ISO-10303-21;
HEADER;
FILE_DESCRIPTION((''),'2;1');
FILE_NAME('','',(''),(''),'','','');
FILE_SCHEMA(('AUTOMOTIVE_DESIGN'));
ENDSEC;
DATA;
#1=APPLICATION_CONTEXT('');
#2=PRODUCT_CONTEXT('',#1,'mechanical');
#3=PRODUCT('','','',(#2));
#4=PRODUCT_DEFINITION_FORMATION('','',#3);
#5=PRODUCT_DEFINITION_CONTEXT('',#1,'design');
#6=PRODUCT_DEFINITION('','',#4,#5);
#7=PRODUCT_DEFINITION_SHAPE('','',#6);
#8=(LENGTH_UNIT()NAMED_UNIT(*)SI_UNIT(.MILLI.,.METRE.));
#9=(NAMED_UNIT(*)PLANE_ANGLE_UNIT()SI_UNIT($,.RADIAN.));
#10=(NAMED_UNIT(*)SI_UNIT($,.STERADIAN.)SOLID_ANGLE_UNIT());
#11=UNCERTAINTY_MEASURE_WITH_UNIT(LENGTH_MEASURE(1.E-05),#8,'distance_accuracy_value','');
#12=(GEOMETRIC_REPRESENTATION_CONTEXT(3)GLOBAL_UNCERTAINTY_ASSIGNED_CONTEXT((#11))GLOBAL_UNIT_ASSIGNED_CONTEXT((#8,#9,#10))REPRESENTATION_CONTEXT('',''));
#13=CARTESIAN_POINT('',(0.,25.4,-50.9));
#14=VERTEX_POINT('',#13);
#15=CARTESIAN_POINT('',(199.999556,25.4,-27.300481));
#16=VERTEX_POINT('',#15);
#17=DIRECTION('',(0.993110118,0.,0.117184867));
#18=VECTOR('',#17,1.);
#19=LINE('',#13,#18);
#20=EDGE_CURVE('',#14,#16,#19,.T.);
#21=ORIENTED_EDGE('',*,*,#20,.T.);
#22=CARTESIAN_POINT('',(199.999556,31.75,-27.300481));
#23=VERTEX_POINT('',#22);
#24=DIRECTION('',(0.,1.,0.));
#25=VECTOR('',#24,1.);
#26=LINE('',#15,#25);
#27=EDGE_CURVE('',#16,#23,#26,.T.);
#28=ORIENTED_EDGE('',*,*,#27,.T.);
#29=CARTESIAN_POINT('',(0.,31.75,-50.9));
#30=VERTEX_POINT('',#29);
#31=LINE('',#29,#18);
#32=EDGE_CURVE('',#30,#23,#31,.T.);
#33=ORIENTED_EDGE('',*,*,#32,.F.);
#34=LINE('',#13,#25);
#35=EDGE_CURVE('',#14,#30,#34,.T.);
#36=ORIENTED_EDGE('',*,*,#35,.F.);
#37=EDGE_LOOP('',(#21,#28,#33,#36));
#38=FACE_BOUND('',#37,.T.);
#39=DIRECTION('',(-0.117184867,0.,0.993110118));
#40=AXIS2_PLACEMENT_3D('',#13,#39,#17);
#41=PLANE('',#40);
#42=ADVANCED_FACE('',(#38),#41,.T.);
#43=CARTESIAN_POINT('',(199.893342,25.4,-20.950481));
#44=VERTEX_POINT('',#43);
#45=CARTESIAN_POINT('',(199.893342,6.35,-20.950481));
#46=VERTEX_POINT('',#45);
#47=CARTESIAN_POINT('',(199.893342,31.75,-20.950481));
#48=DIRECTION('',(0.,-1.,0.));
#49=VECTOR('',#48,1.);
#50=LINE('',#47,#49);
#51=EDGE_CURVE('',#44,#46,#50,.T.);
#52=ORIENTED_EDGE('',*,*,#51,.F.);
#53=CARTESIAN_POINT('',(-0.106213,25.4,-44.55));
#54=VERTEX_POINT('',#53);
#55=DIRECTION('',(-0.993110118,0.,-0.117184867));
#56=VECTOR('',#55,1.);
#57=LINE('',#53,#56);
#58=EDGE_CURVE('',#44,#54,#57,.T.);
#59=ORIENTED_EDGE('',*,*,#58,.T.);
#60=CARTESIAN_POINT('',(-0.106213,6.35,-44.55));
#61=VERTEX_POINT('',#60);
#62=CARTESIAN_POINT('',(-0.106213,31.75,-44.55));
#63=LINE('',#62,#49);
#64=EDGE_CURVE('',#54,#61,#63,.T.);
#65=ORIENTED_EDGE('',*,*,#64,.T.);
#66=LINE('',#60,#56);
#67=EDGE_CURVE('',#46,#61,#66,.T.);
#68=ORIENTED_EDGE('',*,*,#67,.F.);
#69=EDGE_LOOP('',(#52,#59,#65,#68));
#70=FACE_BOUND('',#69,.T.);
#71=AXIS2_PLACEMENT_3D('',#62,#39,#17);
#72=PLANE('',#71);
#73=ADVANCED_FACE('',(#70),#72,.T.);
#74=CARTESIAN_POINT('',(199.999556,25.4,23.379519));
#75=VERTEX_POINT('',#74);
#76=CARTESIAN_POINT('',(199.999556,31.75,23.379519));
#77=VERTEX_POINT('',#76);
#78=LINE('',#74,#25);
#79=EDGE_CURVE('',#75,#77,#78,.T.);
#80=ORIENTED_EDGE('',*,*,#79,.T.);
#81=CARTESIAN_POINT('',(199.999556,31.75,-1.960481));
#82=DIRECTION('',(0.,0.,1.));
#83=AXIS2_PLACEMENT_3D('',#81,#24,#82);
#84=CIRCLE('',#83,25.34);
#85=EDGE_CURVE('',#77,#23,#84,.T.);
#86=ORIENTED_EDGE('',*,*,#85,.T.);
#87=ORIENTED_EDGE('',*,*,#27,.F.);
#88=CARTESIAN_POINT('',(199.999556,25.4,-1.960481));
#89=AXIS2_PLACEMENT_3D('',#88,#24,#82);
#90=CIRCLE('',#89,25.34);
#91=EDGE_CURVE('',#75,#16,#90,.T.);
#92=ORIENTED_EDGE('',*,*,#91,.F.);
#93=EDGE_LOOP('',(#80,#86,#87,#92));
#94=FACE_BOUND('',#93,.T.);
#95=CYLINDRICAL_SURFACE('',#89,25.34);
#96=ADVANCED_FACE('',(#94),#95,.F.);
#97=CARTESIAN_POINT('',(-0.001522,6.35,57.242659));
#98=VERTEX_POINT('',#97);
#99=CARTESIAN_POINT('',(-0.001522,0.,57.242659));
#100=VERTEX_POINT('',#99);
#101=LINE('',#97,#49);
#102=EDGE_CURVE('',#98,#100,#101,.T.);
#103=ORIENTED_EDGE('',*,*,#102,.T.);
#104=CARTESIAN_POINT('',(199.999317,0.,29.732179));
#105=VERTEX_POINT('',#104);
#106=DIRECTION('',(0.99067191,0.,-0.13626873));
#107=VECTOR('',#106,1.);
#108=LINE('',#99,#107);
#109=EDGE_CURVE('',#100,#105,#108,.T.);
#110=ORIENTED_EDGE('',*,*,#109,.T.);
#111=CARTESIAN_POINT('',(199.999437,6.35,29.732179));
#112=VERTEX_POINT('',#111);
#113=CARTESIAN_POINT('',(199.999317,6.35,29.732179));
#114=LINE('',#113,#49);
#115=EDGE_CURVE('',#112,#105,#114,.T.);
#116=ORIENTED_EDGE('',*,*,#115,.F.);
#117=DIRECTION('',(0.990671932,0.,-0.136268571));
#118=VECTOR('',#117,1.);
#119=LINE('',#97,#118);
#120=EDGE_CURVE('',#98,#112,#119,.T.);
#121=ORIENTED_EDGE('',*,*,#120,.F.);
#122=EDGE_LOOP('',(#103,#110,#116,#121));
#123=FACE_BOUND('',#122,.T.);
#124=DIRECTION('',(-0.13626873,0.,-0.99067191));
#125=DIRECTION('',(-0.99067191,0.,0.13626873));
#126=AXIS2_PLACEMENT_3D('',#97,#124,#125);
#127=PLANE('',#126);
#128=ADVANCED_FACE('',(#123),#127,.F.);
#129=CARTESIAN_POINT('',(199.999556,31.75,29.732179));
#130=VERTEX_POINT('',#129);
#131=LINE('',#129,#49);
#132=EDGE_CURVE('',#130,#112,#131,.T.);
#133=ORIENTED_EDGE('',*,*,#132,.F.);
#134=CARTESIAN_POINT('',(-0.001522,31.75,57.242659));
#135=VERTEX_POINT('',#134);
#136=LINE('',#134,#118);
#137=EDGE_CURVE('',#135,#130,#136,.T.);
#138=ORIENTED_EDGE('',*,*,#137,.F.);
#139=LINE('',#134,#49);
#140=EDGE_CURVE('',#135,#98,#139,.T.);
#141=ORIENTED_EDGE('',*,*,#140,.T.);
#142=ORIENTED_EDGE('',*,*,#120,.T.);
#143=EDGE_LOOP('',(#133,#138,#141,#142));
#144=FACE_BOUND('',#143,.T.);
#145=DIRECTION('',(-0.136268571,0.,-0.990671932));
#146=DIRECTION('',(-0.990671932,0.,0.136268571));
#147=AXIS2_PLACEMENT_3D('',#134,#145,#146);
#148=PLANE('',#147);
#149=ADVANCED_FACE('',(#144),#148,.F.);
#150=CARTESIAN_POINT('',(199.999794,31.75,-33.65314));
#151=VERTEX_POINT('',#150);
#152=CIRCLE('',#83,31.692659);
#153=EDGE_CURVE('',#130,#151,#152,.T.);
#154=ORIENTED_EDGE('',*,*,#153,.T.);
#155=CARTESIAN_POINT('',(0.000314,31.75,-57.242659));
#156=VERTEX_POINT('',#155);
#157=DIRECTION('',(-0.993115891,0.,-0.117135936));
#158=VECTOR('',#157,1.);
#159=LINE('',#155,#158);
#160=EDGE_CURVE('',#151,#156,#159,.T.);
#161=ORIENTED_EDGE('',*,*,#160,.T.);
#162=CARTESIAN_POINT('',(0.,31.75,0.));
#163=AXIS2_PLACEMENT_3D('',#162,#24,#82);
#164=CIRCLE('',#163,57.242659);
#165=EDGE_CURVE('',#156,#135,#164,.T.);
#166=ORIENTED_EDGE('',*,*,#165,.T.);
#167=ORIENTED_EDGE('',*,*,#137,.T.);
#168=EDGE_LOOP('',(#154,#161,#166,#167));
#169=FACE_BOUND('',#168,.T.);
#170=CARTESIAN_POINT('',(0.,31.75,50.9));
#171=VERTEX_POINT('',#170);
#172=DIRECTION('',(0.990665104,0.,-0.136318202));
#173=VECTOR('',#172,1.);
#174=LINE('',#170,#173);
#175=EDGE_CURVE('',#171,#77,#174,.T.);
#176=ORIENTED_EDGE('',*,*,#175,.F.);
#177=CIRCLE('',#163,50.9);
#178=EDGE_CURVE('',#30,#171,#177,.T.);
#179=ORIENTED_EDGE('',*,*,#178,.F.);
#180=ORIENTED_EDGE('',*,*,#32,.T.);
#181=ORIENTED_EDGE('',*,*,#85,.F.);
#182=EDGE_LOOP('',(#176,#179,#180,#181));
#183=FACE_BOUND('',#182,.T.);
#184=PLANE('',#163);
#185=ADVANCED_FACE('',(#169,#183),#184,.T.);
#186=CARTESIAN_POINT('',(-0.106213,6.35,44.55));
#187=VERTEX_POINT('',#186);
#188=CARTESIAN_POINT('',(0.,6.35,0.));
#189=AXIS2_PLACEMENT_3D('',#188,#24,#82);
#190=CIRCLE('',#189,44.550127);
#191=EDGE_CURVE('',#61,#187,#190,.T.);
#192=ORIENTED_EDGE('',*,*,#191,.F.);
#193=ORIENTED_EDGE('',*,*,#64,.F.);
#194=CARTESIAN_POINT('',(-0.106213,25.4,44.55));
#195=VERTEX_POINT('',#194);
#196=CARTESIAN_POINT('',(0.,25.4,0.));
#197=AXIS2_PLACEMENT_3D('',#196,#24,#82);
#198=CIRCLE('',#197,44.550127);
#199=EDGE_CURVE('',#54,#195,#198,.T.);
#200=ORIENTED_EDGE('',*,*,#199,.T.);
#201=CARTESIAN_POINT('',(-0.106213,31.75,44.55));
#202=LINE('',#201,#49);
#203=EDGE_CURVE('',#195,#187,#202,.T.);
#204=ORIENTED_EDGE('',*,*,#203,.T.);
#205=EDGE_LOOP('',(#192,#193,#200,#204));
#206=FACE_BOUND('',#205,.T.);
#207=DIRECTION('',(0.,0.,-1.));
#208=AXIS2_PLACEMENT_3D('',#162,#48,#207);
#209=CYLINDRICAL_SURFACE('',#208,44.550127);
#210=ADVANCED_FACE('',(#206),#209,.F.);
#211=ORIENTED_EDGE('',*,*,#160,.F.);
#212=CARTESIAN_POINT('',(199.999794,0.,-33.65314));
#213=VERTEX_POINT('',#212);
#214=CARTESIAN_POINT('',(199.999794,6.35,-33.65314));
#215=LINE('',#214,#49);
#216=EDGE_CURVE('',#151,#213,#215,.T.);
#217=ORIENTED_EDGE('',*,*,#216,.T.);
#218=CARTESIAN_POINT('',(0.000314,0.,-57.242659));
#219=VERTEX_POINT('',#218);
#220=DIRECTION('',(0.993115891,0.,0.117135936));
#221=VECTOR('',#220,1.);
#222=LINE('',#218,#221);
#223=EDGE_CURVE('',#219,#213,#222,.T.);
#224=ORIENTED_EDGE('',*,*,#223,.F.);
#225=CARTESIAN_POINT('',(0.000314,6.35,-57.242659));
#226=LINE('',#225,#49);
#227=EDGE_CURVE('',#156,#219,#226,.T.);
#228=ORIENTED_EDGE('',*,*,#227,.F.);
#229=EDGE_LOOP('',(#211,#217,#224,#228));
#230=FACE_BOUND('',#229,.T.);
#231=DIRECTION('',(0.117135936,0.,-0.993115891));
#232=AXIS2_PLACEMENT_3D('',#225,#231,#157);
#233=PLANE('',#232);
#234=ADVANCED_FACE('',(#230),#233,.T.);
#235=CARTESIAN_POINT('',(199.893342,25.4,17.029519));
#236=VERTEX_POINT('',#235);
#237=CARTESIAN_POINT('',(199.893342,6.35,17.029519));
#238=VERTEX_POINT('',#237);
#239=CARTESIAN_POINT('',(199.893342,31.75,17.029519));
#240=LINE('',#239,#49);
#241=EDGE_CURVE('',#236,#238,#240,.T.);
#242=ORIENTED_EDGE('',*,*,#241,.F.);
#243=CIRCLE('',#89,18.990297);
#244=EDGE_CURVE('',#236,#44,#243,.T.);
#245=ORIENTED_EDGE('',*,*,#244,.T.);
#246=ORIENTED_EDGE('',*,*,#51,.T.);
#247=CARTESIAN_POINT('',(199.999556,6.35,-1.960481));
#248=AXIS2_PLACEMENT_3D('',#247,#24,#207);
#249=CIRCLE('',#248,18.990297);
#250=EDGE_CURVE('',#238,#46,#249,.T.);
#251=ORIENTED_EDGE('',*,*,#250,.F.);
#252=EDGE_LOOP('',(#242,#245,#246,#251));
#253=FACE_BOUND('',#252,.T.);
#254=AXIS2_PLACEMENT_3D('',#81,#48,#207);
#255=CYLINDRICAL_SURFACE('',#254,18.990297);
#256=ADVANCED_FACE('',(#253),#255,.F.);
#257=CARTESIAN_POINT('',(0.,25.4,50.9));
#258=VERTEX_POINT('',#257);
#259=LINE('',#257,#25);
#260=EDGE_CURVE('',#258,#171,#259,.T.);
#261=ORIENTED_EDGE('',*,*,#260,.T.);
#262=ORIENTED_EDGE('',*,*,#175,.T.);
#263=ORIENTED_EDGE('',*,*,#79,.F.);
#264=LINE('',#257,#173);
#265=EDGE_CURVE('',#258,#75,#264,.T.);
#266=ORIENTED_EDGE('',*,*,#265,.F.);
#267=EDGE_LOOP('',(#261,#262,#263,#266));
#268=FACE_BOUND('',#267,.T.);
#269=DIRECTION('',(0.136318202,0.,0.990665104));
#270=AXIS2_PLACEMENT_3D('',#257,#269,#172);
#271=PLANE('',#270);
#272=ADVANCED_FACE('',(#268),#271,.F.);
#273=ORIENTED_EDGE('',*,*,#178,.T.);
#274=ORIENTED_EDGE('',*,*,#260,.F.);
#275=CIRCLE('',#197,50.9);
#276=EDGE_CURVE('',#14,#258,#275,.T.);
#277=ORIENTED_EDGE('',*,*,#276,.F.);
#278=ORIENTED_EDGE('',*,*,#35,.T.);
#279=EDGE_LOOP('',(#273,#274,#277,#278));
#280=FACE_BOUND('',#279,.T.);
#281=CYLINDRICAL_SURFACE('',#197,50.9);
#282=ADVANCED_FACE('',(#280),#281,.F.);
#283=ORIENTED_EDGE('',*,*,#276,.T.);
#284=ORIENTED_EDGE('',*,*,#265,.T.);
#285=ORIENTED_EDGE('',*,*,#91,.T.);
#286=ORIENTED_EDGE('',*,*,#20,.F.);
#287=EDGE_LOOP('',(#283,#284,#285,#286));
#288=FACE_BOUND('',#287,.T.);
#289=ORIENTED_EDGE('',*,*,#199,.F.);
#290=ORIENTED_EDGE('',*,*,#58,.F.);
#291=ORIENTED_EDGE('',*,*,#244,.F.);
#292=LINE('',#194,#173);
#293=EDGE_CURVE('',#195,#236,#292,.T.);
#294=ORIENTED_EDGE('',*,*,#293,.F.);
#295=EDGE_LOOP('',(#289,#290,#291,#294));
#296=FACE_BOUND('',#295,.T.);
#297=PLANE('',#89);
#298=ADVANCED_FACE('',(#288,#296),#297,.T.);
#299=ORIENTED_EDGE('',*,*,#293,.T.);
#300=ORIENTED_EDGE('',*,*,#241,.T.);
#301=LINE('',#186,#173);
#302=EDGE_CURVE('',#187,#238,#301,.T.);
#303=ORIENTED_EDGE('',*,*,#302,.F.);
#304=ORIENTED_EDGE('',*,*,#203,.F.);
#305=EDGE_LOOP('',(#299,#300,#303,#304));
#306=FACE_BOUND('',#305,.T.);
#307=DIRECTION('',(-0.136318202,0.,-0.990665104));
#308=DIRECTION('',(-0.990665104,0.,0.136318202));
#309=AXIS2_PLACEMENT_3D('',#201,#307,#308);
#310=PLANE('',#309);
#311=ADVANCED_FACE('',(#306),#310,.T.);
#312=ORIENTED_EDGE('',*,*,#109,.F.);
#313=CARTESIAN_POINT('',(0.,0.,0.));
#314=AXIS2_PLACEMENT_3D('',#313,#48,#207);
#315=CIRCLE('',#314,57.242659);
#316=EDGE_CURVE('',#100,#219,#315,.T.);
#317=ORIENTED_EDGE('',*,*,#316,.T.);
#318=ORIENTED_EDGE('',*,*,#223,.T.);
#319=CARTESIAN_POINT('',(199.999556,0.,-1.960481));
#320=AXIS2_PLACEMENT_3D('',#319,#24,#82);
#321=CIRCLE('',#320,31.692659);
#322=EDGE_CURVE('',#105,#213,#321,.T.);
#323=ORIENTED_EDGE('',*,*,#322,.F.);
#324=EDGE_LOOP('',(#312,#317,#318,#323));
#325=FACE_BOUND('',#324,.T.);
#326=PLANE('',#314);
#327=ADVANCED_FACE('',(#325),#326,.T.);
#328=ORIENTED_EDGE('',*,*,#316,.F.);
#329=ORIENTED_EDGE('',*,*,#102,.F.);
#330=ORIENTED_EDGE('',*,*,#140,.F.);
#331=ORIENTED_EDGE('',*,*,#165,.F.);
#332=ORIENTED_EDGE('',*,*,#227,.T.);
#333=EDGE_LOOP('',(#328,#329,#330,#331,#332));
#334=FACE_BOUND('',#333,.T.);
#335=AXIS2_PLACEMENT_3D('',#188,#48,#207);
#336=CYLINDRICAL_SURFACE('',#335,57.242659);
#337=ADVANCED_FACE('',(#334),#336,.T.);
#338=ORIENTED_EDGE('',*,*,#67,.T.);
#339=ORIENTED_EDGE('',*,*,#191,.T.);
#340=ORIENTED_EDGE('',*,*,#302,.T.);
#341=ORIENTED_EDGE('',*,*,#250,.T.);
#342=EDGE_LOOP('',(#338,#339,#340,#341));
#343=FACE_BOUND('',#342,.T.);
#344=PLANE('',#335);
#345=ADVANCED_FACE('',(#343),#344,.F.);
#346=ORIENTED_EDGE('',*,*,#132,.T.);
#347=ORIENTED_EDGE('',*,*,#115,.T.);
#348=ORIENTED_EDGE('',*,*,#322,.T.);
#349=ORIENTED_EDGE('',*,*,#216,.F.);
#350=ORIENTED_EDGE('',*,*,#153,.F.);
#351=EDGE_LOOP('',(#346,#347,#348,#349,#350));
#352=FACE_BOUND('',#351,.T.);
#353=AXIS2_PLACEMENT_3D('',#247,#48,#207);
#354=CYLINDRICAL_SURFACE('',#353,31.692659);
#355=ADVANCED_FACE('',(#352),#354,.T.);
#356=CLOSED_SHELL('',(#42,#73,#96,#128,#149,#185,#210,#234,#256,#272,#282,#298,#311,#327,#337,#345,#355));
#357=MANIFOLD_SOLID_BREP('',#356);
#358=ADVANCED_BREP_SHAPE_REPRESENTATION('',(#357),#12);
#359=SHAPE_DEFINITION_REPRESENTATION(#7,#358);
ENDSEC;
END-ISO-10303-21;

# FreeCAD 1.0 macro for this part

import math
import FreeCAD as App
import Part
import Sketcher
Q = App.Units.Quantity

doc = App.newDocument("Part")
body = doc.addObject("PartDesign::Body", "Body")

# Sketch on XZ plane
sketch1 = body.newObject("Sketcher::SketchObject", "Sketch")
sketch1.AttachmentSupport = (doc.getObject("XZ_Plane"), [""])
sketch1.MapMode = "FlatFace"
sketch1.addGeometry([
    Part.LineSegment(App.Vector(200, -34, 0), App.Vector(0, -57, 0)),
    Part.ArcOfCircle(Part.Circle(App.Vector(0, 0, 0), App.Vector(0, 0, 1), 57), math.radians(90), math.radians(270)),
    Part.LineSegment(App.Vector(0, 57, 0), App.Vector(200, 30, 0)),
    Part.ArcOfCircle(Part.Circle(App.Vector(200, -2, 0), App.Vector(0, 0, 1), 32), math.radians(-90), math.radians(90)),
], False)
sketch1.addConstraint([
    Sketcher.Constraint("Coincident", 0, 2, 1, 2),
    Sketcher.Constraint("Coincident", 1, 1, 2, 1),
    Sketcher.Constraint("Coincident", 2, 2, 3, 2),
    Sketcher.Constraint("Coincident", 3, 1, 0, 1),
    Sketcher.Constraint("Coincident", 1, 3, -1, 1),
    Sketcher.Constraint("Radius", 1, 57.242659),
    Sketcher.Constraint("Radius", 3, 31.692659),
    Sketcher.Constraint("DistanceY", 3, 1, 1, 1, 90.895799),
    Sketcher.Constraint("DistanceX", 1, 1, 3, 3, 200.001078),
    Sketcher.Constraint("DistanceX", 2, 2, 3, 3, 0.000239),
    Sketcher.Constraint("DistanceX", 3, 3, 3, 1, 0.000239),
    Sketcher.Constraint("DistanceX", 0, 2, 3, 1, 199.999481),
    Sketcher.Constraint("DistanceX", -1, 1, 3, 3, 199.999556),
])
pad1 = body.newObject("PartDesign::Pad", "Pad")
pad1.Profile = sketch1
pad1.Length = Q("0.25 in")
pad1.Reversed = True

# Sketch on XZ plane
sketch2 = body.newObject("Sketcher::SketchObject", "Sketch001")
sketch2.AttachmentSupport = (doc.getObject("XZ_Plane"), [""])
sketch2.MapMode = "FlatFace"
sketch2.AttachmentOffset = App.Placement(App.Vector(0, 0, -0.25 * 25.4), App.Rotation())
sketch2.addGeometry([
    Part.LineSegment(App.Vector(199.999794, -33.65314, 0), App.Vector(0.000314, -57.242659, 0)),  # 0
    Part.ArcOfCircle(Part.Circle(App.Vector(0, 0, 0), App.Vector(0, 0, 1), 57.242659), math.radians(90.001524), math.radians(270.000314)),  # 1
    Part.LineSegment(App.Vector(-0.001522, 57.242659, 0), App.Vector(199.999556, 29.732179, 0)),  # 2
    Part.ArcOfCircle(Part.Circle(App.Vector(199.999556, -1.960481, 0), App.Vector(0, 0, 1), 31.692659), math.radians(-89.999569), math.radians(90)),  # 3
    Part.LineSegment(App.Vector(-0.106213, -44.55, 0), App.Vector(199.893342, -20.950481, 0)),  # 4
    Part.ArcOfCircle(Part.Circle(App.Vector(199.999556, -1.960481, 0), App.Vector(0, 0, 1), 18.990297), math.radians(-90.320459), math.radians(90.320459)),  # 5
    Part.LineSegment(App.Vector(199.893342, 17.029519, 0), App.Vector(-0.106213, 44.55, 0)),  # 6
    Part.ArcOfCircle(Part.Circle(App.Vector(0, 0, 0), App.Vector(0, 0, 1), 44.550127), math.radians(90.136601), math.radians(269.863399)),  # 7
], False)
sketch2.addConstraint([
    Sketcher.Constraint("Coincident", 0, 2, 1, 2),
    Sketcher.Constraint("Coincident", 1, 1, 2, 1),
    Sketcher.Constraint("Coincident", 2, 2, 3, 2),
    Sketcher.Constraint("Coincident", 3, 1, 0, 1),
    Sketcher.Constraint("Coincident", 4, 2, 5, 1),
    Sketcher.Constraint("Coincident", 5, 2, 6, 1),
    Sketcher.Constraint("Coincident", 6, 2, 7, 1),
    Sketcher.Constraint("Coincident", 7, 2, 4, 1),
    Sketcher.Constraint("Coincident", 1, 3, -1, 1),
    Sketcher.Constraint("Coincident", 7, 3, -1, 1),
    Sketcher.Constraint("Coincident", 5, 3, 3, 3),
    Sketcher.Constraint("Vertical", 5, 3, 2, 2),
    Sketcher.Constraint("Vertical", 4, 2, 5, 2),
    Sketcher.Constraint("Vertical", 6, 2, 7, 2),
    Sketcher.Constraint("Radius", 1, 57.242659),
    Sketcher.Constraint("Radius", 3, 31.692659),
    Sketcher.Constraint("Radius", 5, 18.990297),
    Sketcher.Constraint("Radius", 7, 44.550127),
    Sketcher.Constraint("DistanceY", 4, 2, 3, 3, 18.99),
    Sketcher.Constraint("Distance", 2, 201.884268),
    Sketcher.Constraint("Distance", 4, 201.387089),
    Sketcher.Constraint("DistanceY", 3, 3, -1, 1, 1.960481),
    Sketcher.Constraint("DistanceX", 3, 3, 3, 1, 0.000239),
    Sketcher.Constraint("DistanceX", 0, 2, 3, 1, 199.999481),
    Sketcher.Constraint("DistanceX", -1, 1, 3, 3, 199.999556),
])
pad2 = body.newObject("PartDesign::Pad", "Pad001")
pad2.Profile = sketch2
pad2.Length = Q("1 in")
pad2.Reversed = True

# Sketch on XZ plane
sketch3 = body.newObject("Sketcher::SketchObject", "Sketch002")
sketch3.AttachmentSupport = (doc.getObject("XZ_Plane"), [""])
sketch3.MapMode = "FlatFace"
sketch3.AttachmentOffset = App.Placement(App.Vector(0, 0, -1.25 * 25.4), App.Rotation())
sketch3.addGeometry([
    Part.LineSegment(App.Vector(200, -27, 0), App.Vector(0, -51, 0)),
    Part.ArcOfCircle(Part.Circle(App.Vector(0, 0, 0), App.Vector(0, 0, 1), 51), math.radians(90), math.radians(270)),
    Part.LineSegment(App.Vector(0, 51, 0), App.Vector(200, 23, 0)),
    Part.ArcOfCircle(Part.Circle(App.Vector(200, -2, 0), App.Vector(0, 0, 1), 25), math.radians(-90), math.radians(90)),
], False)
sketch3.addConstraint([
    Sketcher.Constraint("Coincident", 0, 2, 1, 2),
    Sketcher.Constraint("Coincident", 1, 1, 2, 1),
    Sketcher.Constraint("Coincident", 2, 2, 3, 2),
    Sketcher.Constraint("Coincident", 3, 1, 0, 1),
    Sketcher.Constraint("Coincident", 1, 3, -1, 1),
    Sketcher.Constraint("PointOnObject", 0, 2, -2),
    Sketcher.Constraint("PointOnObject", 1, 1, -2),
    Sketcher.Constraint("Vertical", 3, 3, 2, 2),
    Sketcher.Constraint("Vertical", 2, 2, 3, 1),
    Sketcher.Constraint("Radius", 1, 50.9),
    Sketcher.Constraint("Radius", 3, 25.34),
    Sketcher.Constraint("Distance", 0, 201.387089),
    Sketcher.Constraint("DistanceY", 3, 3, -1, 1, 1.960481),
])
pocket1 = body.newObject("PartDesign::Pocket", "Pocket")
pocket1.Profile = sketch3
pocket1.Length = Q("0.25 in")
pocket1.Reversed = True

doc.recompute()
